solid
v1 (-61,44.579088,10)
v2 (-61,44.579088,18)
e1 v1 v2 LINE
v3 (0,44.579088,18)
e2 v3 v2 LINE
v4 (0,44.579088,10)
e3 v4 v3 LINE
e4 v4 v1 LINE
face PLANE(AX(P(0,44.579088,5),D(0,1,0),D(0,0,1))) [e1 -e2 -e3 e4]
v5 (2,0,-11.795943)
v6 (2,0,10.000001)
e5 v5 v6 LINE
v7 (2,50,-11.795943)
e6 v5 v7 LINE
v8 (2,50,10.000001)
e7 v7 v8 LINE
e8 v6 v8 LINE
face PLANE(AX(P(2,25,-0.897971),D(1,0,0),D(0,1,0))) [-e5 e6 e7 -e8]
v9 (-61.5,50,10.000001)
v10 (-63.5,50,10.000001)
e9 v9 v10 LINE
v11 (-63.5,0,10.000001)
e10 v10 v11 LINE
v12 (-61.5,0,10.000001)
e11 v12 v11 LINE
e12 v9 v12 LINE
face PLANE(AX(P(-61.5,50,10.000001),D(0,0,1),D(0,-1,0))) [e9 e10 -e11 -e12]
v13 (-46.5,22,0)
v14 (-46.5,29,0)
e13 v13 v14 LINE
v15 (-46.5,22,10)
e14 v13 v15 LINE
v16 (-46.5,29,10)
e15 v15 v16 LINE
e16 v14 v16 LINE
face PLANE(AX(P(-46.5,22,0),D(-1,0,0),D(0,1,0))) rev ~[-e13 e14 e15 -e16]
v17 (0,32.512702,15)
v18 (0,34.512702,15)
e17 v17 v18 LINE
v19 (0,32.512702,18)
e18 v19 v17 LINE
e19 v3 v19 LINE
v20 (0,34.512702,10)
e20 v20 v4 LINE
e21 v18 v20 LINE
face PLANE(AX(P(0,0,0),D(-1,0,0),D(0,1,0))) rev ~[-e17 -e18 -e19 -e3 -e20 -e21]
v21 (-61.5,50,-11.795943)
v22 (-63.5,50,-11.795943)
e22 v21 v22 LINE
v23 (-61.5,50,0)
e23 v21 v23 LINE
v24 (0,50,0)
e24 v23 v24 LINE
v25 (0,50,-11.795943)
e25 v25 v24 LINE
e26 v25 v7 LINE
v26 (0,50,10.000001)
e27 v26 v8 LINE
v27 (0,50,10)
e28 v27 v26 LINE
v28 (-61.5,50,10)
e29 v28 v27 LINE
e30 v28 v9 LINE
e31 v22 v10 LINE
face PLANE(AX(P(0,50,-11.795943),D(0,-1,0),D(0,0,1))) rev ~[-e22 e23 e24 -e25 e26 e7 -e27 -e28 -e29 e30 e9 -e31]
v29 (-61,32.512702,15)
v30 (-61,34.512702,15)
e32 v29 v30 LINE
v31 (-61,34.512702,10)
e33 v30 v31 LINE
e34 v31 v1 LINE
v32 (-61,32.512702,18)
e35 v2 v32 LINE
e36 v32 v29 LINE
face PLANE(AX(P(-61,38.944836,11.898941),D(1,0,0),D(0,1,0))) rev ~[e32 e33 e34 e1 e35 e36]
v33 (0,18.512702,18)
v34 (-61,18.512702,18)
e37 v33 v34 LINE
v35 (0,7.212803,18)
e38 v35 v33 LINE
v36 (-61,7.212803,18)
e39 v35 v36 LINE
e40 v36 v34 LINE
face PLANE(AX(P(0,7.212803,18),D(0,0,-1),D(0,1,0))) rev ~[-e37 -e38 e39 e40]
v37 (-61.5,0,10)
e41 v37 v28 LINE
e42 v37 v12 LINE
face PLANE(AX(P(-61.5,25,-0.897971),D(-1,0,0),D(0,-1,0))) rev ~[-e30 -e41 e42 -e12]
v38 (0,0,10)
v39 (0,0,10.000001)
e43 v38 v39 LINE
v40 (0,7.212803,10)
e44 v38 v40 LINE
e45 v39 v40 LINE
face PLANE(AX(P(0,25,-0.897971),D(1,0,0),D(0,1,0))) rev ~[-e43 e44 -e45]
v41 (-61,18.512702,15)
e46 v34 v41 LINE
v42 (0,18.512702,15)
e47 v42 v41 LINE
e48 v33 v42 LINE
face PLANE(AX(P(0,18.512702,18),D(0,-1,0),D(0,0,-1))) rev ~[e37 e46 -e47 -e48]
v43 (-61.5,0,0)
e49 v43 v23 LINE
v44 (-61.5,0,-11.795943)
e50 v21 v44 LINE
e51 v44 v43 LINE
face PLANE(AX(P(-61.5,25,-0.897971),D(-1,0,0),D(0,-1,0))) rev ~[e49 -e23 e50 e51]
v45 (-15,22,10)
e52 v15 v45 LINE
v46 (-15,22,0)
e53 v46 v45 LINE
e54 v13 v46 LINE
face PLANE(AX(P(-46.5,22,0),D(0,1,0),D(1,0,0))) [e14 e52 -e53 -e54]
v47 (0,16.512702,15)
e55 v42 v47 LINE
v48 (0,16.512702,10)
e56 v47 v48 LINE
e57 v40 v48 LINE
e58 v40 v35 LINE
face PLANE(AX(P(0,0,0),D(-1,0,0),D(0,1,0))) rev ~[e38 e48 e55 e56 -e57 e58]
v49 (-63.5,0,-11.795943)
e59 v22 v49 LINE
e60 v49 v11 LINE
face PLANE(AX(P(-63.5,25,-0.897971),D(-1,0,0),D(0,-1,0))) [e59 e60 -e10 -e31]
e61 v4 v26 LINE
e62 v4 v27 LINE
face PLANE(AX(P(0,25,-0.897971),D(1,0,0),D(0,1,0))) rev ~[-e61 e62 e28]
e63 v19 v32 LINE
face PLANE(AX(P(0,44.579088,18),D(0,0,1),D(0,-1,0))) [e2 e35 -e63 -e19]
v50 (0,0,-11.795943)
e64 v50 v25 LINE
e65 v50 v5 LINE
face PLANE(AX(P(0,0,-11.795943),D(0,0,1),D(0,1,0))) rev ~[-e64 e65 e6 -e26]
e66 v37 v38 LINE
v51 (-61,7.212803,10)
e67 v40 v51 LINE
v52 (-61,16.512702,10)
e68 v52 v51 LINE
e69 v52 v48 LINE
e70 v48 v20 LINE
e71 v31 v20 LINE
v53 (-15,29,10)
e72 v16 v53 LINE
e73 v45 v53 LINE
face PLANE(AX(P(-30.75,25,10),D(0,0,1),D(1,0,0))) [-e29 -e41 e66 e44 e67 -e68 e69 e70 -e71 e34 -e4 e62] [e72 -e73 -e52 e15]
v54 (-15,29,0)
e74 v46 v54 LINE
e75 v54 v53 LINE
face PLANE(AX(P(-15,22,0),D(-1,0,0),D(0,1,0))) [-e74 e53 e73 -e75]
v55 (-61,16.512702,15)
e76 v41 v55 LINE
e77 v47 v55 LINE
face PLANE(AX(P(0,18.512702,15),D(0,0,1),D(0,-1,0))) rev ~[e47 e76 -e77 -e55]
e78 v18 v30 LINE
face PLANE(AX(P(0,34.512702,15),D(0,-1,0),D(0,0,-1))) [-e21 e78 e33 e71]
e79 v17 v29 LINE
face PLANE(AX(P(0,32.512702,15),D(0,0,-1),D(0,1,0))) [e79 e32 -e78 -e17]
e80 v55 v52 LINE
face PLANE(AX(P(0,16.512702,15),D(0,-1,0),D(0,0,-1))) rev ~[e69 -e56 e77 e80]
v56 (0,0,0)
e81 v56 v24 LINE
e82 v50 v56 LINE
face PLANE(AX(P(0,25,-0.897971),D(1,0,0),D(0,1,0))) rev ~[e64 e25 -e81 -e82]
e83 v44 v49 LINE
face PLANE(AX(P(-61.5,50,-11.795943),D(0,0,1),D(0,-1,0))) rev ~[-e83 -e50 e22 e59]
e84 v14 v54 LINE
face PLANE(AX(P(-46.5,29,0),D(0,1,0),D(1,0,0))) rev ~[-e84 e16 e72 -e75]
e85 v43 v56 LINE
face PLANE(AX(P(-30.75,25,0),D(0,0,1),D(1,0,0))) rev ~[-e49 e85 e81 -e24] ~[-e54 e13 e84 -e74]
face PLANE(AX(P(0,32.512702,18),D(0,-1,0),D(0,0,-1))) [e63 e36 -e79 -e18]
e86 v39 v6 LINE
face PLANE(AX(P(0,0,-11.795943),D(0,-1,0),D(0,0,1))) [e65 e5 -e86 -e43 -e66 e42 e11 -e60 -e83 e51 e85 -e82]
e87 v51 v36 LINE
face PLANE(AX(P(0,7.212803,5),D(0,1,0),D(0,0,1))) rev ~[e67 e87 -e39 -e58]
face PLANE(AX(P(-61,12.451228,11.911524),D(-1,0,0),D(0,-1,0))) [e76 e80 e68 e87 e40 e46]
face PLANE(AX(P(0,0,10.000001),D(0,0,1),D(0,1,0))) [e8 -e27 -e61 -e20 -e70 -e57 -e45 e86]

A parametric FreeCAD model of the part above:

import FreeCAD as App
import Part
import Sketcher

doc = App.newDocument("Part")
body = doc.addObject("PartDesign::Body", "Body")

# Sketch on XY plane
sketch1 = body.newObject("Sketcher::SketchObject", "Sketch")
sketch1.AttachmentSupport = (doc.getObject("XY_Plane"), [""])
sketch1.MapMode = "FlatFace"
sketch1.addGeometry(Part.LineSegment(App.Vector(-62, 50, 0), App.Vector(-62, 0, 0)), False)
sketch1.addGeometry(Part.LineSegment(App.Vector(-62, 0, 0), App.Vector(0, 0, 0)), False)
sketch1.addGeometry(Part.LineSegment(App.Vector(0, 0, 0), App.Vector(0, 50, 0)), False)
sketch1.addGeometry(Part.LineSegment(App.Vector(0, 50, 0), App.Vector(-62, 50, 0)), False)
sketch1.addGeometry(Part.LineSegment(App.Vector(-15, 22, 0), App.Vector(-46, 22, 0)), False)
sketch1.addGeometry(Part.LineSegment(App.Vector(-46, 22, 0), App.Vector(-46, 29, 0)), False)
sketch1.addGeometry(Part.LineSegment(App.Vector(-46, 29, 0), App.Vector(-15, 29, 0)), False)
sketch1.addGeometry(Part.LineSegment(App.Vector(-15, 29, 0), App.Vector(-15, 22, 0)), False)
sketch1.addConstraint(Sketcher.Constraint("Coincident", 0, 2, 1, 1))
sketch1.addConstraint(Sketcher.Constraint("Coincident", 1, 2, 2, 1))
sketch1.addConstraint(Sketcher.Constraint("Coincident", 2, 2, 3, 1))
sketch1.addConstraint(Sketcher.Constraint("Coincident", 3, 2, 0, 1))
sketch1.addConstraint(Sketcher.Constraint("Coincident", 4, 2, 5, 1))
sketch1.addConstraint(Sketcher.Constraint("Coincident", 5, 2, 6, 1))
sketch1.addConstraint(Sketcher.Constraint("Coincident", 6, 2, 7, 1))
sketch1.addConstraint(Sketcher.Constraint("Coincident", 7, 2, 4, 1))
sketch1.addConstraint(Sketcher.Constraint("Vertical", 0))
sketch1.addConstraint(Sketcher.Constraint("Horizontal", 1))
sketch1.addConstraint(Sketcher.Constraint("Vertical", 2))
sketch1.addConstraint(Sketcher.Constraint("Horizontal", 3))
sketch1.addConstraint(Sketcher.Constraint("Horizontal", 4))
sketch1.addConstraint(Sketcher.Constraint("Vertical", 5))
sketch1.addConstraint(Sketcher.Constraint("Horizontal", 6))
sketch1.addConstraint(Sketcher.Constraint("Vertical", 7))
sketch1.addConstraint(Sketcher.Constraint("Coincident", 1, 2, -1, 1))
sketch1.addConstraint(Sketcher.Constraint("DistanceY", 0, 2, 0, 1, 50.0))
sketch1.addConstraint(Sketcher.Constraint("DistanceY", 5, 1, 5, 2, 7.0))
sketch1.addConstraint(Sketcher.Constraint("DistanceX", 1, 1, 1, 2, 61.5))
sketch1.addConstraint(Sketcher.Constraint("DistanceX", 4, 2, 4, 1, 31.5))
sketch1.addConstraint(Sketcher.Constraint("DistanceY", -1, 1, 4, 2, 22.0))
sketch1.addConstraint(Sketcher.Constraint("DistanceX", 6, 2, -1, 1, 15.0))
pad1 = body.newObject("PartDesign::Pad", "Pad")
pad1.Profile = sketch1
pad1.Length = 10

# Sketch on YZ plane
sketch2 = body.newObject("Sketcher::SketchObject", "Sketch001")
sketch2.AttachmentSupport = (doc.getObject("YZ_Plane"), [""])
sketch2.MapMode = "FlatFace"
sketch2.addGeometry(Part.LineSegment(App.Vector(7.2, 18, 0), App.Vector(7.2, 5, 0)), False)
sketch2.addGeometry(Part.LineSegment(App.Vector(7.2, 5, 0), App.Vector(16.5, 5, 0)), False)
sketch2.addGeometry(Part.LineSegment(App.Vector(16.5, 5, 0), App.Vector(16.5, 15, 0)), False)
sketch2.addGeometry(Part.LineSegment(App.Vector(16.5, 15, 0), App.Vector(18.5, 15, 0)), False)
sketch2.addGeometry(Part.LineSegment(App.Vector(18.5, 15, 0), App.Vector(18.5, 18, 0)), False)
sketch2.addGeometry(Part.LineSegment(App.Vector(18.5, 18, 0), App.Vector(7.2, 18, 0)), False)
sketch2.addGeometry(Part.LineSegment(App.Vector(44.6, 5, 0), App.Vector(44.6, 18, 0)), False)
sketch2.addGeometry(Part.LineSegment(App.Vector(44.6, 18, 0), App.Vector(32.5, 18, 0)), False)
sketch2.addGeometry(Part.LineSegment(App.Vector(32.5, 18, 0), App.Vector(32.5, 15, 0)), False)
sketch2.addGeometry(Part.LineSegment(App.Vector(32.5, 15, 0), App.Vector(34.5, 15, 0)), False)
sketch2.addGeometry(Part.LineSegment(App.Vector(34.5, 15, 0), App.Vector(34.5, 5, 0)), False)
sketch2.addGeometry(Part.LineSegment(App.Vector(34.5, 5, 0), App.Vector(44.6, 5, 0)), False)
sketch2.addConstraint(Sketcher.Constraint("Coincident", 0, 2, 1, 1))
sketch2.addConstraint(Sketcher.Constraint("Coincident", 1, 2, 2, 1))
sketch2.addConstraint(Sketcher.Constraint("Coincident", 2, 2, 3, 1))
sketch2.addConstraint(Sketcher.Constraint("Coincident", 3, 2, 4, 1))
sketch2.addConstraint(Sketcher.Constraint("Coincident", 4, 2, 5, 1))
sketch2.addConstraint(Sketcher.Constraint("Coincident", 5, 2, 0, 1))
sketch2.addConstraint(Sketcher.Constraint("Coincident", 6, 2, 7, 1))
sketch2.addConstraint(Sketcher.Constraint("Coincident", 7, 2, 8, 1))
sketch2.addConstraint(Sketcher.Constraint("Coincident", 8, 2, 9, 1))
sketch2.addConstraint(Sketcher.Constraint("Coincident", 9, 2, 10, 1))
sketch2.addConstraint(Sketcher.Constraint("Coincident", 10, 2, 11, 1))
sketch2.addConstraint(Sketcher.Constraint("Coincident", 11, 2, 6, 1))
sketch2.addConstraint(Sketcher.Constraint("Vertical", 0))
sketch2.addConstraint(Sketcher.Constraint("Horizontal", 1))
sketch2.addConstraint(Sketcher.Constraint("Vertical", 2))
sketch2.addConstraint(Sketcher.Constraint("Horizontal", 3))
sketch2.addConstraint(Sketcher.Constraint("Vertical", 4))
sketch2.addConstraint(Sketcher.Constraint("Horizontal", 5))
sketch2.addConstraint(Sketcher.Constraint("Vertical", 6))
sketch2.addConstraint(Sketcher.Constraint("Horizontal", 7))
sketch2.addConstraint(Sketcher.Constraint("Vertical", 8))
sketch2.addConstraint(Sketcher.Constraint("Horizontal", 9))
sketch2.addConstraint(Sketcher.Constraint("Vertical", 10))
sketch2.addConstraint(Sketcher.Constraint("Horizontal", 11))
sketch2.addConstraint(Sketcher.Constraint("Horizontal", 5, 2, 6, 2))
sketch2.addConstraint(Sketcher.Constraint("Horizontal", 3, 2, 8, 2))
sketch2.addConstraint(Sketcher.Constraint("Horizontal", 1, 2, 10, 2))
sketch2.addConstraint(Sketcher.Constraint("Equal", 3, 9))
sketch2.addConstraint(Sketcher.Constraint("DistanceX", 3, 1, 3, 2, 2.0))
sketch2.addConstraint(Sketcher.Constraint("DistanceY", 0, 2, 0, 1, 13.0))
sketch2.addConstraint(Sketcher.Constraint("DistanceY", 2, 1, 2, 2, 10.0))
sketch2.addConstraint(Sketcher.Constraint("DistanceY", -1, 1, 0, 2, 5.0))
sketch2.addConstraint(Sketcher.Constraint("DistanceX", 4, 2, 7, 2, 14.0))
sketch2.addConstraint(Sketcher.Constraint("DistanceX", 1, 1, 1, 2, 9.299899))
sketch2.addConstraint(Sketcher.Constraint("DistanceX", -1, 1, 7, 2, 32.512702))
sketch2.addConstraint(Sketcher.Constraint("DistanceX", 7, 2, 7, 1, 12.066386))
pad2 = body.newObject("PartDesign::Pad", "Pad001")
pad2.Profile = sketch2
pad2.Length = 61
pad2.Reversed = True

# Sketch on YZ plane
sketch3 = body.newObject("Sketcher::SketchObject", "Sketch002")
sketch3.AttachmentSupport = (doc.getObject("YZ_Plane"), [""])
sketch3.MapMode = "FlatFace"
sketch3.AttachmentOffset = App.Placement(App.Vector(0, 0, -61.5), App.Rotation())
sketch3.addGeometry(Part.LineSegment(App.Vector(50, 10, 0), App.Vector(50, -12, 0)), False)
sketch3.addGeometry(Part.LineSegment(App.Vector(50, -12, 0), App.Vector(0, -12, 0)), False)
sketch3.addGeometry(Part.LineSegment(App.Vector(0, -12, 0), App.Vector(0, 10, 0)), False)
sketch3.addGeometry(Part.LineSegment(App.Vector(0, 10, 0), App.Vector(50, 10, 0)), False)
sketch3.addConstraint(Sketcher.Constraint("Coincident", 0, 2, 1, 1))
sketch3.addConstraint(Sketcher.Constraint("Coincident", 1, 2, 2, 1))
sketch3.addConstraint(Sketcher.Constraint("Coincident", 2, 2, 3, 1))
sketch3.addConstraint(Sketcher.Constraint("Coincident", 3, 2, 0, 1))
sketch3.addConstraint(Sketcher.Constraint("Vertical", 0))
sketch3.addConstraint(Sketcher.Constraint("Horizontal", 1))
sketch3.addConstraint(Sketcher.Constraint("Vertical", 2))
sketch3.addConstraint(Sketcher.Constraint("Horizontal", 3))
sketch3.addConstraint(Sketcher.Constraint("PointOnObject", 1, 2, -2))
sketch3.addConstraint(Sketcher.Constraint("DistanceX", 1, 2, 1, 1, 50.0))
sketch3.addConstraint(Sketcher.Constraint("DistanceY", -1, 1, 2, 2, 10.000001))
sketch3.addConstraint(Sketcher.Constraint("DistanceY", 0, 2, 0, 1, 21.795943))
pad3 = body.newObject("PartDesign::Pad", "Pad002")
pad3.Profile = sketch3
pad3.Length = 2
pad3.Reversed = True

# Sketch on YZ plane
sketch4 = body.newObject("Sketcher::SketchObject", "Sketch003")
sketch4.AttachmentSupport = (doc.getObject("YZ_Plane"), [""])
sketch4.MapMode = "FlatFace"
sketch4.addGeometry(Part.LineSegment(App.Vector(0, 10, 0), App.Vector(0, -12, 0)), False)
sketch4.addGeometry(Part.LineSegment(App.Vector(0, -12, 0), App.Vector(50, -12, 0)), False)
sketch4.addGeometry(Part.LineSegment(App.Vector(50, -12, 0), App.Vector(50, 10, 0)), False)
sketch4.addGeometry(Part.LineSegment(App.Vector(50, 10, 0), App.Vector(0, 10, 0)), False)
sketch4.addConstraint(Sketcher.Constraint("Coincident", 0, 2, 1, 1))
sketch4.addConstraint(Sketcher.Constraint("Coincident", 1, 2, 2, 1))
sketch4.addConstraint(Sketcher.Constraint("Coincident", 2, 2, 3, 1))
sketch4.addConstraint(Sketcher.Constraint("Coincident", 3, 2, 0, 1))
sketch4.addConstraint(Sketcher.Constraint("Vertical", 0))
sketch4.addConstraint(Sketcher.Constraint("Horizontal", 1))
sketch4.addConstraint(Sketcher.Constraint("Vertical", 2))
sketch4.addConstraint(Sketcher.Constraint("Horizontal", 3))
sketch4.addConstraint(Sketcher.Constraint("PointOnObject", 0, 2, -2))
sketch4.addConstraint(Sketcher.Constraint("DistanceX", 1, 1, 1, 2, 50.0))
sketch4.addConstraint(Sketcher.Constraint("DistanceY", -1, 1, 2, 2, 10.000001))
sketch4.addConstraint(Sketcher.Constraint("DistanceY", 0, 2, 0, 1, 21.795943))
pad4 = body.newObject("PartDesign::Pad", "Pad003")
pad4.Profile = sketch4
pad4.Length = 2

# Sketch on YZ plane
sketch5 = body.newObject("Sketcher::SketchObject", "Sketch004")
sketch5.AttachmentSupport = (doc.getObject("YZ_Plane"), [""])
sketch5.MapMode = "FlatFace"
sketch5.addGeometry(Part.LineSegment(App.Vector(0, 10, 0), App.Vector(0, -12, 0)), False)
sketch5.addGeometry(Part.LineSegment(App.Vector(0, -12, 0), App.Vector(50, -12, 0)), False)
sketch5.addGeometry(Part.LineSegment(App.Vector(50, -12, 0), App.Vector(50, 10, 0)), False)
sketch5.addGeometry(Part.LineSegment(App.Vector(50, 10, 0), App.Vector(0, 10, 0)), False)
sketch5.addConstraint(Sketcher.Constraint("Coincident", 0, 2, 1, 1))
sketch5.addConstraint(Sketcher.Constraint("Coincident", 1, 2, 2, 1))
sketch5.addConstraint(Sketcher.Constraint("Coincident", 2, 2, 3, 1))
sketch5.addConstraint(Sketcher.Constraint("Coincident", 3, 2, 0, 1))
sketch5.addConstraint(Sketcher.Constraint("Vertical", 0))
sketch5.addConstraint(Sketcher.Constraint("Horizontal", 1))
sketch5.addConstraint(Sketcher.Constraint("Vertical", 2))
sketch5.addConstraint(Sketcher.Constraint("Horizontal", 3))
sketch5.addConstraint(Sketcher.Constraint("PointOnObject", 0, 2, -2))
sketch5.addConstraint(Sketcher.Constraint("DistanceX", 1, 1, 1, 2, 50.0))
sketch5.addConstraint(Sketcher.Constraint("DistanceY", -1, 1, 2, 2, 10.000001))
sketch5.addConstraint(Sketcher.Constraint("DistanceY", 0, 2, 0, 1, 21.795943))
pad5 = body.newObject("PartDesign::Pad", "Pad004")
pad5.Profile = sketch5
pad5.Length = 2

doc.recompute()
